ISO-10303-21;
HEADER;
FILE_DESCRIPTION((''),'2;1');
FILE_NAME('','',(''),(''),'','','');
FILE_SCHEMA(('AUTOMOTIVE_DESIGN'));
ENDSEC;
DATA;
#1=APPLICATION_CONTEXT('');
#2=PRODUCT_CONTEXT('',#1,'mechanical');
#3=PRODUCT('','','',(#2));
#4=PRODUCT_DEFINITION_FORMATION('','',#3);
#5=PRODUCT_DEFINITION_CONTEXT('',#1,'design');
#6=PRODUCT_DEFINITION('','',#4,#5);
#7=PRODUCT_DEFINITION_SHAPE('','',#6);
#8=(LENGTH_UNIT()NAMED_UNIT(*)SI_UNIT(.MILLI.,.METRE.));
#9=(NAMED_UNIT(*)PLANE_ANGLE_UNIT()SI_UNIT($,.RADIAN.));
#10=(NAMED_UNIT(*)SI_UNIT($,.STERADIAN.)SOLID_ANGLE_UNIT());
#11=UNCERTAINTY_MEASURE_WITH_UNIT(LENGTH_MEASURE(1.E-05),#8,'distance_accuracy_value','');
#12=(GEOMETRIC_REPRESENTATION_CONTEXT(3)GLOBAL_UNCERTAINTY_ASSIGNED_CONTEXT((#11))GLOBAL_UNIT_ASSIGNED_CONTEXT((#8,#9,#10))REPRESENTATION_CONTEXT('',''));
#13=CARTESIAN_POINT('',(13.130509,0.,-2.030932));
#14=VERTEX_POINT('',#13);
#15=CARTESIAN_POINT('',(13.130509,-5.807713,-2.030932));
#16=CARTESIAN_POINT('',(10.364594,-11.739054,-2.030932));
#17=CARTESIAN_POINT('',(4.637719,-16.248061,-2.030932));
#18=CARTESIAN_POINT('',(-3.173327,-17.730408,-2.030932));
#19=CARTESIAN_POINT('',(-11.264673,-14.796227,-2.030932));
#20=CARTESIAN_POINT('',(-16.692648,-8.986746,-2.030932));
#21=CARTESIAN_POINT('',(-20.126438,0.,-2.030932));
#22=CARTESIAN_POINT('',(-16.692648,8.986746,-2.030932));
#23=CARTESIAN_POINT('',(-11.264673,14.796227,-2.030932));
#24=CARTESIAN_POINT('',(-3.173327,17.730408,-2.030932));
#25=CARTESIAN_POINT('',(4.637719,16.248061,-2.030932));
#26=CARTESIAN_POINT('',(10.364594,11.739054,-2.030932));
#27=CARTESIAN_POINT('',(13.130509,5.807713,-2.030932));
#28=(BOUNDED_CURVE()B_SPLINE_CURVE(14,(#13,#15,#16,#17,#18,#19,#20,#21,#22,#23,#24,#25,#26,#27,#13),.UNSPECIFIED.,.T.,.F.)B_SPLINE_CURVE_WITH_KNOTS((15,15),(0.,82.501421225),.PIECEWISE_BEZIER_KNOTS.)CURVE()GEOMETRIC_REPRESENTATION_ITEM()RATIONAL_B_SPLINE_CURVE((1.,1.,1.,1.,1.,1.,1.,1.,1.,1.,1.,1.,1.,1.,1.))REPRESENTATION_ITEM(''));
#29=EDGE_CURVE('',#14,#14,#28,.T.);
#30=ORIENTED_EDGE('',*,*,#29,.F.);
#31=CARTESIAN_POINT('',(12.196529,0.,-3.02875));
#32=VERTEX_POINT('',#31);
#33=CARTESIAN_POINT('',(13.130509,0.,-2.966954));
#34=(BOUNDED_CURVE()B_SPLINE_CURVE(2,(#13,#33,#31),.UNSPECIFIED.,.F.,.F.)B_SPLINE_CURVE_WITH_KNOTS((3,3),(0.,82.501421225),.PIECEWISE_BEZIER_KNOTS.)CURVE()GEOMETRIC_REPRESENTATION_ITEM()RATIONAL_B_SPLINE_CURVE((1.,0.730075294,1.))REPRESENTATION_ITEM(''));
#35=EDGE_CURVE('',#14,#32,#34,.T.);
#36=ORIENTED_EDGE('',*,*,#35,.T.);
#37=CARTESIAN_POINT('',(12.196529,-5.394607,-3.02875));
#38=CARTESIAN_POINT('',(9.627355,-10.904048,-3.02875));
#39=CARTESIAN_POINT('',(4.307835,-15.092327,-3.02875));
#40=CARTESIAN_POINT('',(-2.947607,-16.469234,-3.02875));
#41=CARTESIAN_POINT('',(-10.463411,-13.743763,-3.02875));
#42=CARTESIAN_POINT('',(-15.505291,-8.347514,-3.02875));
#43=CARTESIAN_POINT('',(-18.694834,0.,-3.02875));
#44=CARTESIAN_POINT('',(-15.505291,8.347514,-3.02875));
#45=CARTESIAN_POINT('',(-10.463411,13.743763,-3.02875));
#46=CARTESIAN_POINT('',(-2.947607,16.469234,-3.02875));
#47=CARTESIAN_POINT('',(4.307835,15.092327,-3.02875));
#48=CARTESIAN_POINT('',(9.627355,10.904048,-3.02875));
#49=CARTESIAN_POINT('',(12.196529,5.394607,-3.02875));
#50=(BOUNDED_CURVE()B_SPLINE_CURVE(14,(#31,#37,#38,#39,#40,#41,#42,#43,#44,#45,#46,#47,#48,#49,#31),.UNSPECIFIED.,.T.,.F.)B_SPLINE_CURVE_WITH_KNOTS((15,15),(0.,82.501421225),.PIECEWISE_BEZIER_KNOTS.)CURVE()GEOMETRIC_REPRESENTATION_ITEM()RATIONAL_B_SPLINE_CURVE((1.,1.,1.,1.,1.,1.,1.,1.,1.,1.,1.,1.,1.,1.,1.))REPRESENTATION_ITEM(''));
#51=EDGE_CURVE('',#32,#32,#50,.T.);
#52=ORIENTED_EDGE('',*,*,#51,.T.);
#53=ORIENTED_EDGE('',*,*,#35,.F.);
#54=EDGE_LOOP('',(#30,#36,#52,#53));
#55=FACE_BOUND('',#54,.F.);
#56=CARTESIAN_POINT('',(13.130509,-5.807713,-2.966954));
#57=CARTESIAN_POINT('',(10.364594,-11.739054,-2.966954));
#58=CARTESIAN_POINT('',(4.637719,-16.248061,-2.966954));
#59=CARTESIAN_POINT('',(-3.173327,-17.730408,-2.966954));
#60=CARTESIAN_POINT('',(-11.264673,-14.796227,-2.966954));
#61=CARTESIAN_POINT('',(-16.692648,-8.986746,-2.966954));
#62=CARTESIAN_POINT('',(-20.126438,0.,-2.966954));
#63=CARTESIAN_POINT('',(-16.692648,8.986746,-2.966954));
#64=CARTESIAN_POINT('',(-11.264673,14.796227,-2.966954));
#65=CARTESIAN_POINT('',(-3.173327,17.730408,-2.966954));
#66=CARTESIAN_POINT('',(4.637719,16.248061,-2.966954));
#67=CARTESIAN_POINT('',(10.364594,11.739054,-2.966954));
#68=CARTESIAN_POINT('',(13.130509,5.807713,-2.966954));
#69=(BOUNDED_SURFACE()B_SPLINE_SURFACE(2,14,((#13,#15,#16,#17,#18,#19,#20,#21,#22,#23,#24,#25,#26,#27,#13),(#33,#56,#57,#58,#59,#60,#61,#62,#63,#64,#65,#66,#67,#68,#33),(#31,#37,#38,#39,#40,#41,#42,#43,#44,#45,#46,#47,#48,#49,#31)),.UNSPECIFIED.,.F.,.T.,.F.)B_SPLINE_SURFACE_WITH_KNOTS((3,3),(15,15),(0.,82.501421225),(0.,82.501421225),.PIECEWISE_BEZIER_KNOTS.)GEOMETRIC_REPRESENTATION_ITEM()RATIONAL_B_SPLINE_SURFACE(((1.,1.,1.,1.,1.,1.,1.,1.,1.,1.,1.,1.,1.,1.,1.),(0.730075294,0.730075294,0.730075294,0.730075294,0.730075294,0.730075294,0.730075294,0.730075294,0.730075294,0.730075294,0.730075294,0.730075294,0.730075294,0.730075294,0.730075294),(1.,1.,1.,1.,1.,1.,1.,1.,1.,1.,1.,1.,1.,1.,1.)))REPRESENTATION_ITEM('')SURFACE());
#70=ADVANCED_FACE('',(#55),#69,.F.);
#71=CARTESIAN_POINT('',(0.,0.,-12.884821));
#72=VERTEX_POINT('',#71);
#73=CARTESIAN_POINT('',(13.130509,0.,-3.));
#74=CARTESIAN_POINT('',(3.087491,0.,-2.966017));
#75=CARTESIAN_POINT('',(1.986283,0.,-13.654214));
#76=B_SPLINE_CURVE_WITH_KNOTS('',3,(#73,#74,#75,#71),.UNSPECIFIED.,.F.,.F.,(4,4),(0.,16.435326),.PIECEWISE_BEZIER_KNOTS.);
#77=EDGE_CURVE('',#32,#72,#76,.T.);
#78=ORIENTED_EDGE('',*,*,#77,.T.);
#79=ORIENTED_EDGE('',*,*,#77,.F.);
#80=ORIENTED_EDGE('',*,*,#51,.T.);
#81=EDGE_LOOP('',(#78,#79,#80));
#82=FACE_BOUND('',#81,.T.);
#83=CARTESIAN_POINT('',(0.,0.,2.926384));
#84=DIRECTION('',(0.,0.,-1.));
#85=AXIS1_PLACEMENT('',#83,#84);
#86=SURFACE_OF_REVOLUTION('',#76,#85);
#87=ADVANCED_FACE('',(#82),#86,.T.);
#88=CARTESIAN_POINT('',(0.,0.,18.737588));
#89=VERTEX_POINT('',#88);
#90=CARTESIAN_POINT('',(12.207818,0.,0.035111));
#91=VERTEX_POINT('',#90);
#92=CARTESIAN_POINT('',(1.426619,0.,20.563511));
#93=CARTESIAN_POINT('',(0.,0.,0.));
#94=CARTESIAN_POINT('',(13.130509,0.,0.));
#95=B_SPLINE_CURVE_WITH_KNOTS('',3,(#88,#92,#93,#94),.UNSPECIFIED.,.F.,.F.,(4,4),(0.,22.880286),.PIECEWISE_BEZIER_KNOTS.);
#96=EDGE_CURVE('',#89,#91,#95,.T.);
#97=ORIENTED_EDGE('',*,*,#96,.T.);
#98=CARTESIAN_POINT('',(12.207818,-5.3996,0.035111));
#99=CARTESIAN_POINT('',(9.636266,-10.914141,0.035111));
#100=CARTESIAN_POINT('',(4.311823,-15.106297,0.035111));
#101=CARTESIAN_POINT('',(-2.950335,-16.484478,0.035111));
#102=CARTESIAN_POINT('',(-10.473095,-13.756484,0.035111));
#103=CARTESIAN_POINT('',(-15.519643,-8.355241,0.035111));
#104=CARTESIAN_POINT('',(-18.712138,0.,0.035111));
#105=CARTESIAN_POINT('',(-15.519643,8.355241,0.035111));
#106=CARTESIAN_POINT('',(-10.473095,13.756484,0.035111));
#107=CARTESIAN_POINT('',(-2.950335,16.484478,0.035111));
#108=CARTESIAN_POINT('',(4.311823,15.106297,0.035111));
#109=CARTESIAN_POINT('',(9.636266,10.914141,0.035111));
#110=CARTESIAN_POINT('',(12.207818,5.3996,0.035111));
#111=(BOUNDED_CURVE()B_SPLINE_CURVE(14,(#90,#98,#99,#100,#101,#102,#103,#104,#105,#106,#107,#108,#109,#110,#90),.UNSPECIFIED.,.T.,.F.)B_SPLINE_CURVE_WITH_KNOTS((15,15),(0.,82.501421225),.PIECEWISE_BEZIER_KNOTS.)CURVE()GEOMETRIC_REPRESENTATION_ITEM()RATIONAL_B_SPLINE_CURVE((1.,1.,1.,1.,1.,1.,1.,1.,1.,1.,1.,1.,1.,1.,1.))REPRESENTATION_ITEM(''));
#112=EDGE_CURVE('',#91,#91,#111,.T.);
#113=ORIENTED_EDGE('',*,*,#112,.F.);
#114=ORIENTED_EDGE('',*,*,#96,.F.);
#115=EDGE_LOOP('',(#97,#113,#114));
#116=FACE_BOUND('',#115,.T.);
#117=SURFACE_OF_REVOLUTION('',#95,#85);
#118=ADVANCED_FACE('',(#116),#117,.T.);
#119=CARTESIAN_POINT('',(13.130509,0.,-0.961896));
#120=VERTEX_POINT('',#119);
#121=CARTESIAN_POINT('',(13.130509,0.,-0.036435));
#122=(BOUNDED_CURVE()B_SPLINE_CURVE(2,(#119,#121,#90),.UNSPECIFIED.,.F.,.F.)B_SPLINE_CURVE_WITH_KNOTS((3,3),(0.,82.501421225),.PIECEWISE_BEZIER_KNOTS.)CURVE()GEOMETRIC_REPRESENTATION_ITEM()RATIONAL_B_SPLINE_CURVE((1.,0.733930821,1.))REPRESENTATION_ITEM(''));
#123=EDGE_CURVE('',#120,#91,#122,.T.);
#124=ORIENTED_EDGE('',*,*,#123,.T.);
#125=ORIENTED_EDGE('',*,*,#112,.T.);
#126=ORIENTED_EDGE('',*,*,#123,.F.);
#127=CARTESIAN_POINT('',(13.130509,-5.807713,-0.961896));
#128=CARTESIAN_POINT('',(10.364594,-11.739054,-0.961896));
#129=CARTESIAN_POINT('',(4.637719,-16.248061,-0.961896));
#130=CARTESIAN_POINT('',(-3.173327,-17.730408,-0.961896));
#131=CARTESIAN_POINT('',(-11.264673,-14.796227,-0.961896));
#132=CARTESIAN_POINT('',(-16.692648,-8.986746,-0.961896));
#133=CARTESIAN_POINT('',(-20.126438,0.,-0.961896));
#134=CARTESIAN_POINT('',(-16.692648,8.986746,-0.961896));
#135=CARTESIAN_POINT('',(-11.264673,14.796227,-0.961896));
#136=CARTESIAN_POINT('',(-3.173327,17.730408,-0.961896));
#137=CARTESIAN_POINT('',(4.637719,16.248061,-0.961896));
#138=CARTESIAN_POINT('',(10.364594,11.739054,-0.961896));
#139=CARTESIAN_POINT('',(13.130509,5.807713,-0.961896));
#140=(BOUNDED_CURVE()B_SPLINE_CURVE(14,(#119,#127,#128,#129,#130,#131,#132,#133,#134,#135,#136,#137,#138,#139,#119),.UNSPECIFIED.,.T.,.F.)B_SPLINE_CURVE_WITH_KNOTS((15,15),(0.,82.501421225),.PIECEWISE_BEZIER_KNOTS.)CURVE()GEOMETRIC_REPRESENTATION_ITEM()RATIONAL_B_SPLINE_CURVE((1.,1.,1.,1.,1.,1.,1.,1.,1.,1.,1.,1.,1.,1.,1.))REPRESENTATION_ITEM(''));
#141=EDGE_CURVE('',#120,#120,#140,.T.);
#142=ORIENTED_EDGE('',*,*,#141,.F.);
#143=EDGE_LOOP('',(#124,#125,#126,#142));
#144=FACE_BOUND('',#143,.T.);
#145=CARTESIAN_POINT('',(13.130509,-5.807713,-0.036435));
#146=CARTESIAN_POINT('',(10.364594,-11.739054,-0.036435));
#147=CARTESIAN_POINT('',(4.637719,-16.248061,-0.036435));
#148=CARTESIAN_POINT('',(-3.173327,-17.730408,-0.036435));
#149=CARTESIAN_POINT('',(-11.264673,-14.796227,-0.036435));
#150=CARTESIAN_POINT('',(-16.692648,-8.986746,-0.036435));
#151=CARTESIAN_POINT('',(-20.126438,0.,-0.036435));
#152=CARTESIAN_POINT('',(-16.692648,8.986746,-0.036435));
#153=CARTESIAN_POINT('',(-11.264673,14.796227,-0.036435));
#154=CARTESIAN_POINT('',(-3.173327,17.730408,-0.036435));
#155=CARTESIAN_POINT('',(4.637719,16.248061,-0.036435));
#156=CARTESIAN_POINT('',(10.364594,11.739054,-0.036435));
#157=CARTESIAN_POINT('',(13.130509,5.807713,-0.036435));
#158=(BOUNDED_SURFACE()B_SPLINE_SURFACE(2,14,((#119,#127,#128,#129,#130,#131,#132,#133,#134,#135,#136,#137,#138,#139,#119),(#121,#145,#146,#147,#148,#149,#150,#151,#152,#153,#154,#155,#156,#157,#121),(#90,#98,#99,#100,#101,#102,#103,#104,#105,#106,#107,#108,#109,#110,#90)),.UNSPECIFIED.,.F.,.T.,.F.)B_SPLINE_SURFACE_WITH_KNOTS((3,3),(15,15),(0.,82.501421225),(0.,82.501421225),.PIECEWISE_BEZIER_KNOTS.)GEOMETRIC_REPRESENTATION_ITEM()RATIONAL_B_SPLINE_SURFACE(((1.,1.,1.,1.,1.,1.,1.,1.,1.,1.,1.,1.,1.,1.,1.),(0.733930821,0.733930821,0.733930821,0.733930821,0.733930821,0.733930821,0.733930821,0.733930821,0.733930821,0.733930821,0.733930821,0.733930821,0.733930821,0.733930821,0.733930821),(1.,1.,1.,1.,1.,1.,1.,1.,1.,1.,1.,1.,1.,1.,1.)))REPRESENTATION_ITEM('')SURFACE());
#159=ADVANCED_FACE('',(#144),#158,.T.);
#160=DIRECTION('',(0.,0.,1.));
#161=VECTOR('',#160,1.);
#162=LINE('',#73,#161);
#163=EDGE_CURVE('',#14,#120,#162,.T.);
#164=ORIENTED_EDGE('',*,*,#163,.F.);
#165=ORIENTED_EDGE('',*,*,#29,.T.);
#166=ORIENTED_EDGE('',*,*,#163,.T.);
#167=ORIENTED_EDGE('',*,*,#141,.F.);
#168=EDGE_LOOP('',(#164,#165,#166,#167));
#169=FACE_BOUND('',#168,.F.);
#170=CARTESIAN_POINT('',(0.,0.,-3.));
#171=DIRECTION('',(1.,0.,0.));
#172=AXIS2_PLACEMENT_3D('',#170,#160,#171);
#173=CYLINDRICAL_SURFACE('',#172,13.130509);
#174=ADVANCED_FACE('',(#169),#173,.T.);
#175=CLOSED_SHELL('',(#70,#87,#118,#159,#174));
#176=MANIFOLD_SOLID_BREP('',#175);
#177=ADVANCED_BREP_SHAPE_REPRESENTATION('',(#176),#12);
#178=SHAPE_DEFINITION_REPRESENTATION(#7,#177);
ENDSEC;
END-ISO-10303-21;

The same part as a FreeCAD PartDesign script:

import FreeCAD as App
import Part
import Sketcher
from FreeCAD import Vector


def edges_at(feature, points):
    """Names of the edges that pass closest to the given points."""
    edges = feature.Shape.Edges
    near = lambda p: min(range(len(edges)), key=lambda i: edges[i].distToShape(Part.Vertex(*p))[0])
    return sorted({f"Edge{near(p) + 1}" for p in points})

doc = App.newDocument("Part")
body = doc.addObject("PartDesign::Body", "Body")

# Sketch on XZ plane
sketch1 = body.newObject("Sketcher::SketchObject", "Sketch")
sketch1.AttachmentSupport = (doc.getObject("XZ_Plane"), [""])
sketch1.MapMode = "FlatFace"
sketch1.addGeometry([
    Part.LineSegment(Vector(13.130509, -3, 0), Vector(13.130509, 0, 0)),
    Part.BSplineCurve([Vector(0, 18.737588, 0), Vector(1.426619, 20.563511, 0), Vector(0, 0, 0), Vector(13.130509, 0, 0)], [4, 4], [0, 22.880286], False, 3, [1, 1, 1, 1], False),
    Part.LineSegment(Vector(0, 18.737588, 0), Vector(0, -12.884821, 0)),
    Part.BSplineCurve([Vector(13.130509, -3, 0), Vector(3.087491, -2.966017, 0), Vector(1.986283, -13.654214, 0), Vector(0, -12.884821, 0)], [4, 4], [0, 16.435326], False, 3, [1, 1, 1, 1], False),
], False)
sketch1.addConstraint([
    Sketcher.Constraint("Block", 1),
    Sketcher.Constraint("Block", 3),
    Sketcher.Constraint("Coincident", 0, 2, 1, 2),
    Sketcher.Constraint("Coincident", 1, 1, 2, 1),
    Sketcher.Constraint("Coincident", 2, 2, 3, 2),
    Sketcher.Constraint("Coincident", 3, 1, 0, 1),
])
revolution = body.newObject("PartDesign::Revolution", "Revolution")
revolution.Profile = sketch1
revolution.ReferenceAxis = (sketch1, ["V_Axis"])
revolution.Angle = 360
doc.recompute()

fillet = body.newObject("PartDesign::Fillet", "Fillet")
fillet.Base = (revolution, edges_at(revolution, [(-13.131, 0, 0), (-13.131, 0, -3)]))
fillet.Radius = 1

doc.recompute()
